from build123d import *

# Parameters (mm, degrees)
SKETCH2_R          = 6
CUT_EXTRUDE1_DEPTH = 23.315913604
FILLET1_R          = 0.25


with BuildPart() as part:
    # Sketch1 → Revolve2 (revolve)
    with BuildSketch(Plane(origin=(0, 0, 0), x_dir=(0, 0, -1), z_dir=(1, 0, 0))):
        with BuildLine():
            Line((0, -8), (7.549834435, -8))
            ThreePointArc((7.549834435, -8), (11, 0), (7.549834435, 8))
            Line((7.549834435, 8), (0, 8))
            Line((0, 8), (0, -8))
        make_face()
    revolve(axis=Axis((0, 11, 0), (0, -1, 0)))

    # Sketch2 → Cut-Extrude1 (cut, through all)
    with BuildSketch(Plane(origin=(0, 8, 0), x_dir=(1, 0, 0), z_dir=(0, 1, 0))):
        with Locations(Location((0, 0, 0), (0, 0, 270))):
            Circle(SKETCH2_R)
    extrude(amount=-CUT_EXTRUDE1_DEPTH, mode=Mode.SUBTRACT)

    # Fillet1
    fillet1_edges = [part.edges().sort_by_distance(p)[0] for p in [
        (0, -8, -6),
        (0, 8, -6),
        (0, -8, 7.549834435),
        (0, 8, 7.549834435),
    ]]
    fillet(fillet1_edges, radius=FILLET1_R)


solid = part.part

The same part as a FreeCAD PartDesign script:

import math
import FreeCAD as App
import Part
import Sketcher
Q = App.Units.Quantity


def edges_at(feature, points):
    """Names of the edges that pass closest to the given points."""
    edges = feature.Shape.Edges
    near = lambda p: min(range(len(edges)), key=lambda i: edges[i].distToShape(Part.Vertex(*p))[0])
    return sorted({f"Edge{near(p) + 1}" for p in points})

doc = App.newDocument("Part")
body = doc.addObject("PartDesign::Body", "Body")

sketch1 = doc.addObject("Sketcher::SketchObject", "Sketch")
body.addObject(sketch1)
sketch1.AttachmentSupport = (doc.YZ_Plane, [""])
sketch1.MapMode = "FlatFace"
sketch1.addGeometry([
    Part.LineSegment(App.Vector(-8, 0, 0), App.Vector(-8, -8, 0)),
    Part.ArcOfCircle(Part.Circle(App.Vector(0, 0, 0), App.Vector(0, 0, 1), 11), math.radians(-137), math.radians(-43)),
    Part.LineSegment(App.Vector(8, -8, 0), App.Vector(8, 0, 0)),
    Part.LineSegment(App.Vector(8, 0, 0), App.Vector(-8, 0, 0)),
], False)
sketch1.addConstraint([
    Sketcher.Constraint("Coincident", 0, 2, 1, 1),
    Sketcher.Constraint("Coincident", 1, 2, 2, 1),
    Sketcher.Constraint("Coincident", 2, 2, 3, 1),
    Sketcher.Constraint("Coincident", 3, 2, 0, 1),
    Sketcher.Constraint("Vertical", 0),
    Sketcher.Constraint("Vertical", 2),
    Sketcher.Constraint("Horizontal", 3),
    Sketcher.Constraint("Coincident", 1, 3, -1, 1),
    Sketcher.Constraint("Symmetric", 2, 2, 3, 2, -1, 1),
    Sketcher.Constraint("Radius", 1, Q("11 mm")),
    Sketcher.Constraint("DistanceX", 3, 2, 3, 1, Q("16 mm")),
])
revolution = doc.addObject("PartDesign::Revolution", "Revolution")
body.addObject(revolution)
revolution.Profile = sketch1
revolution.ReferenceAxis = (sketch1, ["H_Axis"])
revolution.Angle = 360

sketch2 = doc.addObject("Sketcher::SketchObject", "Sketch001")
body.addObject(sketch2)
sketch2.AttachmentSupport = (doc.XZ_Plane, [""])
sketch2.MapMode = "FlatFace"
sketch2.AttachmentOffset = App.Placement(App.Vector(0, 0, -8), App.Rotation())
sketch2.addGeometry(Part.Circle(App.Vector(0, 0, 0), App.Vector(0, 0, 1), 6), False)
sketch2.addConstraint([
    Sketcher.Constraint("Coincident", 0, 3, -1, 1),
    Sketcher.Constraint("Diameter", 0, Q("12 mm")),
])
pocket1 = doc.addObject("PartDesign::Pocket", "Pocket")
body.addObject(pocket1)
pocket1.Profile = sketch2
pocket1.Type = "ThroughAll"
pocket1.Reversed = True
doc.recompute()

fillet = doc.addObject("PartDesign::Fillet", "Fillet")
body.addObject(fillet)
fillet.Base = (pocket1, edges_at(pocket1, [
    (0, -8, -6),
    (0, 8, -6),
    (0, -8, 7.55),
    (0, 8, 7.55),
]))
fillet.Radius = 0.25

doc.recompute()
